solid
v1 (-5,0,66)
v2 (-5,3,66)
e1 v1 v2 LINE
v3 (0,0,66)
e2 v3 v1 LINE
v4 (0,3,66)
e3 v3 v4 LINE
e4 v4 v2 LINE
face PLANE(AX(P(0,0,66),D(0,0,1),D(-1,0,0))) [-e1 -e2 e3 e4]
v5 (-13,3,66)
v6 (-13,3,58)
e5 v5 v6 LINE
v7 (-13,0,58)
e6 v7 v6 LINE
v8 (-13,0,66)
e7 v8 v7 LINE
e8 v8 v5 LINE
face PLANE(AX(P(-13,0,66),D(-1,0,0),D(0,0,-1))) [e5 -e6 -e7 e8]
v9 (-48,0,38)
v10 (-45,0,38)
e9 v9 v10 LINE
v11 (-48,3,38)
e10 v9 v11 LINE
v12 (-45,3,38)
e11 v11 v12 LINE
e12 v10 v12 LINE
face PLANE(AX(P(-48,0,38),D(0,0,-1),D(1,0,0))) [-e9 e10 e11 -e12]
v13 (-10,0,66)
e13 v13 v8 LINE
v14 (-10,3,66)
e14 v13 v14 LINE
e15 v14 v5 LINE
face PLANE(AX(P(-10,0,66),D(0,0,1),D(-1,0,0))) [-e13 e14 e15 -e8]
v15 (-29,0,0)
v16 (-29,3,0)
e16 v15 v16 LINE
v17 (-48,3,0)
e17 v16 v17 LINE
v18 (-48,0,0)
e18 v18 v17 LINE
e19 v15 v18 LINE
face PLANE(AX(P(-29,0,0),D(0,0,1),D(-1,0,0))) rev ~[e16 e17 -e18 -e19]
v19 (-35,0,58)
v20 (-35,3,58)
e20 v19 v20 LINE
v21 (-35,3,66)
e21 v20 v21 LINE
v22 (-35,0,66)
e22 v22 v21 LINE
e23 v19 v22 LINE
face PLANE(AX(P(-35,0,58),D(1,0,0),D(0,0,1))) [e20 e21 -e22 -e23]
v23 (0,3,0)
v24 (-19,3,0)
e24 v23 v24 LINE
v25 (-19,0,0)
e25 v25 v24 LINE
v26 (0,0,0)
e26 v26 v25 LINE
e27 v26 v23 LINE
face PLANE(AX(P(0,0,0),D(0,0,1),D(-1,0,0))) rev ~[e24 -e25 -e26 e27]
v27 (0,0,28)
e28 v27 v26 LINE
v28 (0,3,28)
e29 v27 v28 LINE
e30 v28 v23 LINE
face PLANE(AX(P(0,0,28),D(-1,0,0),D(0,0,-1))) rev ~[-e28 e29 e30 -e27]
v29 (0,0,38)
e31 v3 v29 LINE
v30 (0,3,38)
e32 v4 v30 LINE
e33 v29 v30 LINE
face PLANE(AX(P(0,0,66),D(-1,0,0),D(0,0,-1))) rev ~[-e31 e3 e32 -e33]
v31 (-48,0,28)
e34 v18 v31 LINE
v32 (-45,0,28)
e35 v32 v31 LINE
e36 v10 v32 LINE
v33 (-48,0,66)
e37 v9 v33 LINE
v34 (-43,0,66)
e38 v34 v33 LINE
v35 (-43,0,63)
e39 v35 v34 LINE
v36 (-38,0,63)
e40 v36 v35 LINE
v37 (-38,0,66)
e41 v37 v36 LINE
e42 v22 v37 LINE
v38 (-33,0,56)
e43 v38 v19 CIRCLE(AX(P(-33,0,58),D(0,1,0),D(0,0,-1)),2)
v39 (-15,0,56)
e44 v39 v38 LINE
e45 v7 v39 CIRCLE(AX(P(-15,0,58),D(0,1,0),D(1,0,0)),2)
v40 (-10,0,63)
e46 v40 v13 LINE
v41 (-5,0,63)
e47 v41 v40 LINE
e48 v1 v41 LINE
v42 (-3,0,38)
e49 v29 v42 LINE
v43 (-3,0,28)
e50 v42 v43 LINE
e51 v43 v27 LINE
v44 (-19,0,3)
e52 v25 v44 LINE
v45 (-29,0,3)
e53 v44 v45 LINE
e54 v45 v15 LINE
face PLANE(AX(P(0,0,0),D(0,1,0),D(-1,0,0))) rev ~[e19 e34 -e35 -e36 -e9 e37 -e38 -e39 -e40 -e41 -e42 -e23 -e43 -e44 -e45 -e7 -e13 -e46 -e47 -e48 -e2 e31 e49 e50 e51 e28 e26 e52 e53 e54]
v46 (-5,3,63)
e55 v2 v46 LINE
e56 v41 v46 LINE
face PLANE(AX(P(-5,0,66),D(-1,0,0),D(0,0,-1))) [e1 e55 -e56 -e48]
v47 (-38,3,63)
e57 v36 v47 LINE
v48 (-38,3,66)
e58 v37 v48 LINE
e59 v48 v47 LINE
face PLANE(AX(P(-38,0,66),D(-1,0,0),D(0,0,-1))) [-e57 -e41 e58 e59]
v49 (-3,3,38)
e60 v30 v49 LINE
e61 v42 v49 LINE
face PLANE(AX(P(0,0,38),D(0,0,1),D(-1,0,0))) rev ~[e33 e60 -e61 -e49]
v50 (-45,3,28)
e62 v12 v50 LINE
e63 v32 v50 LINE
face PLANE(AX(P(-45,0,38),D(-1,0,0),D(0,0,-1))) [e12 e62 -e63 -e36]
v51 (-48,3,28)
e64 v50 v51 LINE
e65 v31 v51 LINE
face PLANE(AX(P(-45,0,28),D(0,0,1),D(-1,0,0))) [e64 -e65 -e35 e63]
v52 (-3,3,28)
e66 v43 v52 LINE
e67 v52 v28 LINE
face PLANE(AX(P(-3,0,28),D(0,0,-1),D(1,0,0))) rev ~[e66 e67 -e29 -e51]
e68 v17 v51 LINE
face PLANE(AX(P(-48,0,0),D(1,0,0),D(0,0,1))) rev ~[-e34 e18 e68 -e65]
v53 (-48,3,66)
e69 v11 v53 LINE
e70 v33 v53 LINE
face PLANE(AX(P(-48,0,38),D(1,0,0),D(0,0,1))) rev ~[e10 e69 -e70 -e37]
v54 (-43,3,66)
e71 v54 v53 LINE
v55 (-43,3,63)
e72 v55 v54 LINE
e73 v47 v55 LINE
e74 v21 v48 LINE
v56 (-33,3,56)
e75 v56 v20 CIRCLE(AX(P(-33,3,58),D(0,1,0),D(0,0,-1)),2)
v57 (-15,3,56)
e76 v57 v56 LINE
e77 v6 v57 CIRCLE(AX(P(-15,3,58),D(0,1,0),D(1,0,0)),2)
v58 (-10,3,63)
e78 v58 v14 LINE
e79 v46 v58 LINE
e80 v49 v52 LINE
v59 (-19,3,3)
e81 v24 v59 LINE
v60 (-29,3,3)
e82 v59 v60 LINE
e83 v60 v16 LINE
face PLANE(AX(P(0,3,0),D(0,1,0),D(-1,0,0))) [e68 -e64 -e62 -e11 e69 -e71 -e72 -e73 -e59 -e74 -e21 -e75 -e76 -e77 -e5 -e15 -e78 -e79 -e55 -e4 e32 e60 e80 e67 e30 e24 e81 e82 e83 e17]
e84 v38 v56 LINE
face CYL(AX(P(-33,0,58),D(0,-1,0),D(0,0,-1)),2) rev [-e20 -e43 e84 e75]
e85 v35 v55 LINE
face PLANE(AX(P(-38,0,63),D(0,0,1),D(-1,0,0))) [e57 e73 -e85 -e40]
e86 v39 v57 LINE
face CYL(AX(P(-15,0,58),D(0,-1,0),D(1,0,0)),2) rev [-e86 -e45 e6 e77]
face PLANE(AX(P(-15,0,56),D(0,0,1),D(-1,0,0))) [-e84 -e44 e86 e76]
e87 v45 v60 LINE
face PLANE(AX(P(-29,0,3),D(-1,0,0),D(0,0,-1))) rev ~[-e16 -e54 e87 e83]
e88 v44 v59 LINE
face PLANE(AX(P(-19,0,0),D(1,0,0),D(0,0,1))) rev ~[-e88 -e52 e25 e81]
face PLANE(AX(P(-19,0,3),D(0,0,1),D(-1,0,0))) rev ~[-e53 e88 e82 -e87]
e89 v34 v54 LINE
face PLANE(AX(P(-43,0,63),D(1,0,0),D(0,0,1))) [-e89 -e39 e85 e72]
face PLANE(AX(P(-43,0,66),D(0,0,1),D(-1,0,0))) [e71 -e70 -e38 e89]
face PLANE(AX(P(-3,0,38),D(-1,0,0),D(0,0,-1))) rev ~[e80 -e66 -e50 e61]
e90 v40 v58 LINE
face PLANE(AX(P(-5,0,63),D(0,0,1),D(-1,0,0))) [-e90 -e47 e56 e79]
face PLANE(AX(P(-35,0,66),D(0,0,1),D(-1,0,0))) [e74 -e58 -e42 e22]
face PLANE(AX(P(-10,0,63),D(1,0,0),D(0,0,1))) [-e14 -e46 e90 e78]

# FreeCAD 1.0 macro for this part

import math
import FreeCAD as App
import Part
import Sketcher

V = App.Vector
Q = App.Units.Quantity

doc = App.newDocument("Part")
params = doc.addObject("Spreadsheet::Sheet", "Params")
for row, (alias, value) in enumerate([
    ("sketch1_radius", "2 mm"),
    ("sketch1_width", "19 mm"),
    ("sketch1_width2", "10 mm"),
    ("sketch1_width3", "3 mm"),
    ("sketch1_width4", "5 mm"),
    ("pad1_length", "3 mm"),
], start=1):
    params.set(f"A{row}", alias)
    params.set(f"B{row}", "=" + value)
    params.setAlias(f"B{row}", alias)

body = doc.addObject("PartDesign::Body", "Body")

# Sketch on XZ plane
sketch1 = body.newObject("Sketcher::SketchObject", "Sketch")
sketch1.AttachmentSupport = (doc.getObject("XZ_Plane"), [""])
sketch1.MapMode = "FlatFace"
sketch1.addGeometry([
    Part.LineSegment(V(0, 0, 0), V(-19, 0, 0)),  # 0
    Part.LineSegment(V(-19, 0, 0), V(-19, 3, 0)),  # 1
    Part.LineSegment(V(-19, 3, 0), V(-29, 3, 0)),  # 2
    Part.LineSegment(V(-29, 3, 0), V(-29, 0, 0)),  # 3
    Part.LineSegment(V(-29, 0, 0), V(-48, 0, 0)),  # 4
    Part.LineSegment(V(-48, 0, 0), V(-48, 28, 0)),  # 5
    Part.LineSegment(V(-48, 28, 0), V(-45, 28, 0)),  # 6
    Part.LineSegment(V(-45, 28, 0), V(-45, 38, 0)),  # 7
    Part.LineSegment(V(-45, 38, 0), V(-48, 38, 0)),  # 8
    Part.LineSegment(V(-48, 38, 0), V(-48, 66, 0)),  # 9
    Part.LineSegment(V(-48, 66, 0), V(-43, 66, 0)),  # 10
    Part.LineSegment(V(-43, 66, 0), V(-43, 63, 0)),  # 11
    Part.LineSegment(V(-43, 63, 0), V(-38, 63, 0)),  # 12
    Part.LineSegment(V(-38, 63, 0), V(-38, 66, 0)),  # 13
    Part.LineSegment(V(-38, 66, 0), V(-35, 66, 0)),  # 14
    Part.LineSegment(V(-35, 66, 0), V(-35, 58, 0)),  # 15
    Part.ArcOfCircle(Part.Circle(V(-33, 58, 0), V(0, 0, 1), 2), math.radians(180), math.radians(270)),  # 16
    Part.LineSegment(V(-33, 56, 0), V(-15, 56, 0)),  # 17
    Part.ArcOfCircle(Part.Circle(V(-15, 58, 0), V(0, 0, 1), 2), math.radians(-90), math.radians(0)),  # 18
    Part.LineSegment(V(-13, 58, 0), V(-13, 66, 0)),  # 19
    Part.LineSegment(V(-13, 66, 0), V(-10, 66, 0)),  # 20
    Part.LineSegment(V(-10, 66, 0), V(-10, 63, 0)),  # 21
    Part.LineSegment(V(-10, 63, 0), V(-5, 63, 0)),  # 22
    Part.LineSegment(V(-5, 63, 0), V(-5, 66, 0)),  # 23
    Part.LineSegment(V(-5, 66, 0), V(0, 66, 0)),  # 24
    Part.LineSegment(V(0, 66, 0), V(0, 38, 0)),  # 25
    Part.LineSegment(V(0, 38, 0), V(-3, 38, 0)),  # 26
    Part.LineSegment(V(-3, 38, 0), V(-3, 28, 0)),  # 27
    Part.LineSegment(V(-3, 28, 0), V(0, 28, 0)),  # 28
    Part.LineSegment(V(0, 28, 0), V(0, 0, 0)),  # 29
], False)
sketch1.addConstraint([
    Sketcher.Constraint("Coincident", 0, 2, 1, 1),
    Sketcher.Constraint("Coincident", 1, 2, 2, 1),
    Sketcher.Constraint("Coincident", 2, 2, 3, 1),
    Sketcher.Constraint("Coincident", 3, 2, 4, 1),
    Sketcher.Constraint("Coincident", 4, 2, 5, 1),
    Sketcher.Constraint("Coincident", 5, 2, 6, 1),
    Sketcher.Constraint("Coincident", 6, 2, 7, 1),
    Sketcher.Constraint("Coincident", 7, 2, 8, 1),
    Sketcher.Constraint("Coincident", 8, 2, 9, 1),
    Sketcher.Constraint("Coincident", 9, 2, 10, 1),
    Sketcher.Constraint("Coincident", 10, 2, 11, 1),
    Sketcher.Constraint("Coincident", 11, 2, 12, 1),
    Sketcher.Constraint("Coincident", 12, 2, 13, 1),
    Sketcher.Constraint("Coincident", 13, 2, 14, 1),
    Sketcher.Constraint("Coincident", 14, 2, 15, 1),
    Sketcher.Constraint("Tangent", 15, 2, 16, 1),
    Sketcher.Constraint("Tangent", 16, 2, 17, 1),
    Sketcher.Constraint("Tangent", 17, 2, 18, 1),
    Sketcher.Constraint("Tangent", 18, 2, 19, 1),
    Sketcher.Constraint("Coincident", 19, 2, 20, 1),
    Sketcher.Constraint("Coincident", 20, 2, 21, 1),
    Sketcher.Constraint("Coincident", 21, 2, 22, 1),
    Sketcher.Constraint("Coincident", 22, 2, 23, 1),
    Sketcher.Constraint("Coincident", 23, 2, 24, 1),
    Sketcher.Constraint("Coincident", 24, 2, 25, 1),
    Sketcher.Constraint("Coincident", 25, 2, 26, 1),
    Sketcher.Constraint("Coincident", 26, 2, 27, 1),
    Sketcher.Constraint("Coincident", 27, 2, 28, 1),
    Sketcher.Constraint("Coincident", 28, 2, 29, 1),
    Sketcher.Constraint("Coincident", 29, 2, 0, 1),
    Sketcher.Constraint("Horizontal", 0),
    Sketcher.Constraint("Vertical", 1),
    Sketcher.Constraint("Horizontal", 2),
    Sketcher.Constraint("Vertical", 3),
    Sketcher.Constraint("Horizontal", 4),
    Sketcher.Constraint("Vertical", 5),
    Sketcher.Constraint("Horizontal", 6),
    Sketcher.Constraint("Vertical", 7),
    Sketcher.Constraint("Horizontal", 8),
    Sketcher.Constraint("Vertical", 9),
    Sketcher.Constraint("Horizontal", 10),
    Sketcher.Constraint("Vertical", 11),
    Sketcher.Constraint("Horizontal", 12),
    Sketcher.Constraint("Vertical", 13),
    Sketcher.Constraint("Horizontal", 14),
    Sketcher.Constraint("Vertical", 15),
    Sketcher.Constraint("Horizontal", 17),
    Sketcher.Constraint("Vertical", 19),
    Sketcher.Constraint("Horizontal", 20),
    Sketcher.Constraint("Vertical", 21),
    Sketcher.Constraint("Horizontal", 22),
    Sketcher.Constraint("Vertical", 23),
    Sketcher.Constraint("Horizontal", 24),
    Sketcher.Constraint("Vertical", 25),
    Sketcher.Constraint("Horizontal", 26),
    Sketcher.Constraint("Vertical", 27),
    Sketcher.Constraint("Horizontal", 28),
    Sketcher.Constraint("Vertical", 29),
    Sketcher.Constraint("Coincident", 29, 2, -1, 1),
    Sketcher.Constraint("Equal", 16, 18),
    Sketcher.Constraint("PointOnObject", 3, 2, -1),
    Sketcher.Constraint("PointOnObject", 24, 2, -2),
    Sketcher.Constraint("Horizontal", 10, 2, 13, 2),
    Sketcher.Constraint("Horizontal", 14, 2, 19, 2),
    Sketcher.Constraint("Horizontal", 12, 2, 21, 2),
    Sketcher.Constraint("Horizontal", 20, 2, 23, 2),
    Sketcher.Constraint("Horizontal", 8, 2, 25, 2),
    Sketcher.Constraint("Horizontal", 6, 2, 27, 2),
    Sketcher.Constraint("Vertical", 5, 2, 8, 2),
    Sketcher.Constraint("Equal", 0, 4),
    Sketcher.Constraint("Equal", 10, 12),
    Sketcher.Constraint("Equal", 8, 14),
    Sketcher.Constraint("Equal", 14, 20),
    Sketcher.Constraint("Equal", 12, 22),
    Sketcher.Constraint("Equal", 22, 24),
    Sketcher.Constraint("Equal", 20, 26),
    Sketcher.Constraint("Equal", 28, 1),
    Sketcher.Constraint("Equal", 2, 7),
    Sketcher.Constraint("Equal", 5, 9),
    Sketcher.Constraint("Equal", 3, 11),
    Sketcher.Constraint("Radius", 16, Q("2 mm")),
    Sketcher.Constraint("DistanceX", 0, 2, 0, 1, Q("19 mm")),
    Sketcher.Constraint("DistanceX", 2, 2, 2, 1, Q("10 mm")),
    Sketcher.Constraint("DistanceX", 6, 1, 6, 2, Q("3 mm")),
    Sketcher.Constraint("DistanceX", 10, 1, 10, 2, Q("5 mm")),
    Sketcher.Constraint("DistanceY", 5, 1, 5, 2, Q("28 mm")),
    Sketcher.Constraint("DistanceY", 16, 3, 11, 2, Q("5 mm")),
])
sketch1.setExpression("Constraints[80]", "Params.sketch1_radius")
sketch1.setExpression("Constraints[81]", "Params.sketch1_width")
sketch1.setExpression("Constraints[82]", "Params.sketch1_width2")
sketch1.setExpression("Constraints[83]", "Params.sketch1_width3")
sketch1.setExpression("Constraints[84]", "Params.sketch1_width4")
pad1 = body.newObject("PartDesign::Pad", "Pad")
pad1.Profile = sketch1
pad1.setExpression("Length", "Params.pad1_length")
pad1.Reversed = True

doc.recompute()
